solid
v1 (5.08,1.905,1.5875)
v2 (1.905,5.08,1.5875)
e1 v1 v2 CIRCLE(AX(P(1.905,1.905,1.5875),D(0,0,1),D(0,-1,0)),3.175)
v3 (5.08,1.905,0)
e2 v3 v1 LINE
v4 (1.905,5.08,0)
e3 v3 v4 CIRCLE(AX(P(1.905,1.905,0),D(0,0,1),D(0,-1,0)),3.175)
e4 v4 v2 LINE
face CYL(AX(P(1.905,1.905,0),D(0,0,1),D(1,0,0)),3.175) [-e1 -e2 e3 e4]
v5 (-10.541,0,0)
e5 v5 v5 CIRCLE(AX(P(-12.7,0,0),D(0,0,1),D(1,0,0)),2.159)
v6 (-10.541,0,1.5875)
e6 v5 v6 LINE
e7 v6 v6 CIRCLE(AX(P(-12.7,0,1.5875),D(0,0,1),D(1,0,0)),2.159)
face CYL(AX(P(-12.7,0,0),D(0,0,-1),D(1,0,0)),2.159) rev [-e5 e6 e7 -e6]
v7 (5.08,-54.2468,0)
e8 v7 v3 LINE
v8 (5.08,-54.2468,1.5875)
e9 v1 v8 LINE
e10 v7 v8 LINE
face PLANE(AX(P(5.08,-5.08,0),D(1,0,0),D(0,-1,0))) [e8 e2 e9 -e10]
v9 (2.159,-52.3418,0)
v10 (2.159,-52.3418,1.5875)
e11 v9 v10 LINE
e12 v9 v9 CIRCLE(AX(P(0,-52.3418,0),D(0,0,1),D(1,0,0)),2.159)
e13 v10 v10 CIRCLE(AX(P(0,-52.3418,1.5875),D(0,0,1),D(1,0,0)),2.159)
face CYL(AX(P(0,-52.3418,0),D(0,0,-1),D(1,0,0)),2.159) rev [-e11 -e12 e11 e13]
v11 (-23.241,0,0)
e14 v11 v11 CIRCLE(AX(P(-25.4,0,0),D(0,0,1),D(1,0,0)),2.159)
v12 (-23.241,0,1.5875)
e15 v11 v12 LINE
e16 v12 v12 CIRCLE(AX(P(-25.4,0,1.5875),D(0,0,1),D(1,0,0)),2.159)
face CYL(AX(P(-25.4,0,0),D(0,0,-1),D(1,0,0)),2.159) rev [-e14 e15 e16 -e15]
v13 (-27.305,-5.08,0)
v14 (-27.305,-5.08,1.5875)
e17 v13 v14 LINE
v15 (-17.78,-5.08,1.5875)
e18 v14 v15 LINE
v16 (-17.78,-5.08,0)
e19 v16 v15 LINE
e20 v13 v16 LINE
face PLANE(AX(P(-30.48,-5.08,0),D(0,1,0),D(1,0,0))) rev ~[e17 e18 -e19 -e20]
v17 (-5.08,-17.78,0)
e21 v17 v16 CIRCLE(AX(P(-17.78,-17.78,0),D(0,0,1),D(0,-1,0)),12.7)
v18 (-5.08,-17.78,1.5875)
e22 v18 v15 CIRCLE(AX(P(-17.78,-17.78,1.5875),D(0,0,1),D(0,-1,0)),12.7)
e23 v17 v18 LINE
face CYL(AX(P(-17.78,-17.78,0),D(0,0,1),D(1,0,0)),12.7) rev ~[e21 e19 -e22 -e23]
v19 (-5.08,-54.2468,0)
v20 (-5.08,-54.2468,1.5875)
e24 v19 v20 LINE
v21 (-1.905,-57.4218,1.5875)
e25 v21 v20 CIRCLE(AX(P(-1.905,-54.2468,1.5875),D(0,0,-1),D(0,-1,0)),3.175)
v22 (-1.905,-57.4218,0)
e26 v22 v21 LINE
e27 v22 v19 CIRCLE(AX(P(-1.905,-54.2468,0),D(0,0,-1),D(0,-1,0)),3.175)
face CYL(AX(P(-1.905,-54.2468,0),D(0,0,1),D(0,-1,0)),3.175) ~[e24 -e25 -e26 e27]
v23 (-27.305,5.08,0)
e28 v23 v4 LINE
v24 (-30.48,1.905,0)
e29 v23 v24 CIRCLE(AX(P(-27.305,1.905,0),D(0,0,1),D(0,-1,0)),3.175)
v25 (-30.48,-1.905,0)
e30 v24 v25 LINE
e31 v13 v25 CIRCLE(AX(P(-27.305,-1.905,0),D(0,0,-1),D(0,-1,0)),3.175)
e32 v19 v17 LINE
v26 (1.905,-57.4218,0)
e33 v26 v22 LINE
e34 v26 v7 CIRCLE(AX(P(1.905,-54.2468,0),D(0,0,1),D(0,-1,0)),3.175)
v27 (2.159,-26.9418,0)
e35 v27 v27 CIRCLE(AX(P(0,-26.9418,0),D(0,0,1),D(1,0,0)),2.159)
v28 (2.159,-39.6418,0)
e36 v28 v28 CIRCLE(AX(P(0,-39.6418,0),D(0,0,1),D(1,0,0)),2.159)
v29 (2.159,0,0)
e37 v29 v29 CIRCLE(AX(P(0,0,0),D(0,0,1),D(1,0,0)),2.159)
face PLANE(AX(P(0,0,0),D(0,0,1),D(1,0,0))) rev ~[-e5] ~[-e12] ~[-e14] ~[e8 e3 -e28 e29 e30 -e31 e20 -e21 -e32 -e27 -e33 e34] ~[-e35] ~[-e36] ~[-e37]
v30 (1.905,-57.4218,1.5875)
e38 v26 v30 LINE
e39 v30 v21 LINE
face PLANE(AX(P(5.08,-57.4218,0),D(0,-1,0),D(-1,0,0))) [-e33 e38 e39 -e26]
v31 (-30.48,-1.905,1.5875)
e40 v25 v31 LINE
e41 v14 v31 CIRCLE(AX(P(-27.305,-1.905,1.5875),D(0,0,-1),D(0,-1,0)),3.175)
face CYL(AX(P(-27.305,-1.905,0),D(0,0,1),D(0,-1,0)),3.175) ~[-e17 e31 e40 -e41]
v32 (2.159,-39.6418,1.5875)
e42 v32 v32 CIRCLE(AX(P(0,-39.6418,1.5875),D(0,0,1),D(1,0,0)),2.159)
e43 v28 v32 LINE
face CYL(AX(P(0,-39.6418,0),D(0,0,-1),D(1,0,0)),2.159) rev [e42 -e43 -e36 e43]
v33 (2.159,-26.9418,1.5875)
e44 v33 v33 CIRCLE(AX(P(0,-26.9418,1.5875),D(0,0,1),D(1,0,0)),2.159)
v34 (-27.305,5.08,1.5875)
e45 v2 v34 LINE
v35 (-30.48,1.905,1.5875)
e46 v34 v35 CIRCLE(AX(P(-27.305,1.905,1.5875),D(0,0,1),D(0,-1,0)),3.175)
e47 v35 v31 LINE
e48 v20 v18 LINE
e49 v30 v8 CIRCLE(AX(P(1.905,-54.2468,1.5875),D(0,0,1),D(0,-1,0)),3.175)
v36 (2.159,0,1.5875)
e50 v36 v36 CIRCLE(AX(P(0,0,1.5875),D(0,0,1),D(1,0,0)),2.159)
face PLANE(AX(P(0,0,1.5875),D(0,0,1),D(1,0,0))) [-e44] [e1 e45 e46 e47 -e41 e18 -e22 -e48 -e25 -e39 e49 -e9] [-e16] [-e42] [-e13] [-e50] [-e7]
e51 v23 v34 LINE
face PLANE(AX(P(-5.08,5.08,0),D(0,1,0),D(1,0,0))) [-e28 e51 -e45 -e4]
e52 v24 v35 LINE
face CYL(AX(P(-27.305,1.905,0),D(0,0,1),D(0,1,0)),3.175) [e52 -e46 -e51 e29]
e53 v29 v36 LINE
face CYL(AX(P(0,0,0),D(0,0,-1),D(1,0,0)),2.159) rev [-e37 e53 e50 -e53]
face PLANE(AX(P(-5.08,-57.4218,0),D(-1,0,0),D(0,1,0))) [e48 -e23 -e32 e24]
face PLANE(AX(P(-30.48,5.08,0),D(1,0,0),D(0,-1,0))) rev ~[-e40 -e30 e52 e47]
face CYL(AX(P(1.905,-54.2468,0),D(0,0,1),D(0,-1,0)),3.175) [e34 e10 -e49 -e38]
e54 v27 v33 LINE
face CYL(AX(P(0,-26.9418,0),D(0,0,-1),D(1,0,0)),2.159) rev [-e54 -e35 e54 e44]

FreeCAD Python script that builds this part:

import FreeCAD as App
import Part
import Sketcher

V = App.Vector
Q = App.Units.Quantity


def edges_at(feature, points):
    """Names of the edges that pass closest to the given points."""
    edges = feature.Shape.Edges
    near = lambda p: min(range(len(edges)), key=lambda i: edges[i].distToShape(Part.Vertex(*p))[0])
    return sorted({f"Edge{near(p) + 1}" for p in points})


def add_polygon(sketch, points):
    """Adds a closed chain of lines whose ends are joined by coincident constraints."""
    first, n = sketch.GeometryCount, len(points)
    for a, b in zip(points, points[1:] + points[:1]):
        sketch.addGeometry(Part.LineSegment(App.Vector(*a, 0), App.Vector(*b, 0)), False)
    for i in range(n):
        sketch.addConstraint(Sketcher.Constraint("Coincident", first + i, 2, first + (i + 1) % n, 1))

doc = App.newDocument("Part")
body = doc.addObject("PartDesign::Body", "Body")

sketch1 = body.newObject("Sketcher::SketchObject", "Sketch")
sketch1.AttachmentSupport = (doc.getObject("XY_Plane"), [""])
sketch1.MapMode = "FlatFace"
add_polygon(sketch1, [(-5.1, -57.4), (5.1, -57.4), (5.1, 5.1), (-30.5, 5.1), (-30.5, -5.1), (-5.1, -5.1)])
sketch1.addGeometry(Part.Circle(V(0, -52.3, 0), V(0, 0, 1), 2.2), False)
sketch1.addGeometry(Part.Circle(V(0, -39.6, 0), V(0, 0, 1), 2.2), False)
sketch1.addGeometry(Part.Circle(V(0, -26.9, 0), V(0, 0, 1), 2.2), False)
sketch1.addGeometry(Part.Circle(V(0, 0, 0), V(0, 0, 1), 2.2), False)
sketch1.addGeometry(Part.Circle(V(-12.7, 0, 0), V(0, 0, 1), 2.2), False)
sketch1.addGeometry(Part.Circle(V(-25.4, 0, 0), V(0, 0, 1), 2.2), False)
sketch1.addConstraint(Sketcher.Constraint("Horizontal", 0))
sketch1.addConstraint(Sketcher.Constraint("Vertical", 1))
sketch1.addConstraint(Sketcher.Constraint("Horizontal", 2))
sketch1.addConstraint(Sketcher.Constraint("Vertical", 3))
sketch1.addConstraint(Sketcher.Constraint("Horizontal", 4))
sketch1.addConstraint(Sketcher.Constraint("Vertical", 5))
sketch1.addConstraint(Sketcher.Constraint("Coincident", 9, 3, -1, 1))
sketch1.addConstraint(Sketcher.Constraint("Equal", 6, 7))
sketch1.addConstraint(Sketcher.Constraint("Equal", 7, 8))
sketch1.addConstraint(Sketcher.Constraint("Equal", 8, 9))
sketch1.addConstraint(Sketcher.Constraint("Equal", 9, 10))
sketch1.addConstraint(Sketcher.Constraint("Equal", 10, 11))
sketch1.addConstraint(Sketcher.Constraint("Symmetric", 1, 2, 4, 2, -1, 1))
sketch1.addConstraint(Sketcher.Constraint("PointOnObject", 6, 3, -2))
sketch1.addConstraint(Sketcher.Constraint("PointOnObject", 7, 3, -2))
sketch1.addConstraint(Sketcher.Constraint("PointOnObject", 8, 3, -2))
sketch1.addConstraint(Sketcher.Constraint("PointOnObject", 10, 3, -1))
sketch1.addConstraint(Sketcher.Constraint("PointOnObject", 11, 3, -1))
sketch1.addConstraint(Sketcher.Constraint("Equal", 0, 3))
sketch1.addConstraint(Sketcher.Constraint("Diameter", 6, Q("0.17 in")))
sketch1.addConstraint(Sketcher.Constraint("DistanceX", 4, 1, 4, 2, Q("1 in")))
sketch1.addConstraint(Sketcher.Constraint("DistanceX", 0, 1, 0, 2, Q("0.4 in")))
sketch1.addConstraint(Sketcher.Constraint("DistanceX", 11, 3, -1, 1, Q("1 in")))
sketch1.addConstraint(Sketcher.Constraint("DistanceY", 6, 3, 8, 3, Q("1 in")))
sketch1.addConstraint(Sketcher.Constraint("DistanceX", 10, 3, -1, 1, Q("0.5 in")))
sketch1.addConstraint(Sketcher.Constraint("DistanceY", 6, 3, 7, 3, Q("0.5 in")))
sketch1.addConstraint(Sketcher.Constraint("DistanceY", 8, 3, -1, 1, Q("1.0607 in")))
sketch1.addConstraint(Sketcher.Constraint("DistanceY", 0, 2, 6, 3, Q("0.2 in")))
pad1 = body.newObject("PartDesign::Pad", "Pad")
pad1.Profile = sketch1
pad1.Length = Q("0.0625 in")
doc.recompute()

fillet = body.newObject("PartDesign::Fillet", "Fillet")
fillet.Base = (pad1, edges_at(pad1, [
    (-30.48, -5.08, 0.794),
    (-30.48, 5.08, 0.794),
    (5.08, 5.08, 0.794),
    (5.08, -57.422, 0.794),
    (-5.08, -57.422, 0.794),
]))
fillet.Radius = Q("0.125 in")
doc.recompute()

fillet2 = body.newObject("PartDesign::Fillet", "Fillet001")
fillet2.Base = (fillet, edges_at(fillet, [(-5.08, -5.08, 0.794)]))
fillet2.Radius = Q("0.5 in")

doc.recompute()
